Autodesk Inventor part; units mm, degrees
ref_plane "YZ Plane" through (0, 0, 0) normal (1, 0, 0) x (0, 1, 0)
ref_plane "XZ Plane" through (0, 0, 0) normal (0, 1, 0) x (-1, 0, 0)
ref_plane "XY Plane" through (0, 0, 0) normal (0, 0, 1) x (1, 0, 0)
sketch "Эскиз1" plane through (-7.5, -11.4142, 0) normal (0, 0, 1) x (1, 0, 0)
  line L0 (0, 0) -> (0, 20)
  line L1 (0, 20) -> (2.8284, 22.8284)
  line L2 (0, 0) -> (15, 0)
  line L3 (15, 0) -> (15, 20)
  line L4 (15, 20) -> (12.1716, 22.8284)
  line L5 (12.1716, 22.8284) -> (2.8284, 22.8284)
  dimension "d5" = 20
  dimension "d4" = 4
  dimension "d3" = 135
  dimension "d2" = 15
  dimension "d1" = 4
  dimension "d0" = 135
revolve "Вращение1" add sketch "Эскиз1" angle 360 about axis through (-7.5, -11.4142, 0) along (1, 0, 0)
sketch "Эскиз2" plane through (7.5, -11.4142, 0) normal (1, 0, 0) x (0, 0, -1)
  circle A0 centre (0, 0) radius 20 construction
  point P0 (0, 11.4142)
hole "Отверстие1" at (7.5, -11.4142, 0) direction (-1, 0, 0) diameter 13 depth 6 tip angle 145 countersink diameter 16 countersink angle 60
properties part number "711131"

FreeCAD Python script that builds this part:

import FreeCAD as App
import Part
import Sketcher
from FreeCAD import Vector

doc = App.newDocument("Part")
body = doc.addObject("PartDesign::Body", "Body")

sketch1 = body.newObject("Sketcher::SketchObject", "Sketch")
sketch1.AttachmentSupport = (doc.getObject("XY_Plane"), [""])
sketch1.MapMode = "FlatFace"
sketch1.addGeometry([
    Part.LineSegment(Vector(-7.5, 8.6, 0), Vector(-7.5, -11.4, 0)),
    Part.LineSegment(Vector(-7.5, -11.4, 0), Vector(7.5, -11.4, 0)),
    Part.LineSegment(Vector(7.5, -11.4, 0), Vector(7.5, 8.6, 0)),
    Part.LineSegment(Vector(7.5, 8.6, 0), Vector(4.7, 11.4, 0)),
    Part.LineSegment(Vector(4.7, 11.4, 0), Vector(-4.7, 11.4, 0)),
    Part.LineSegment(Vector(-4.7, 11.4, 0), Vector(-7.5, 8.6, 0)),
], False)
sketch1.addGeometry(Part.LineSegment(Vector(-7.5, -11.4, 0), Vector(7.5, -11.4, 0)), True)
sketch1.addConstraint([
    Sketcher.Constraint("Coincident", 0, 2, 1, 1),
    Sketcher.Constraint("Coincident", 1, 2, 2, 1),
    Sketcher.Constraint("Coincident", 2, 2, 3, 1),
    Sketcher.Constraint("Coincident", 3, 2, 4, 1),
    Sketcher.Constraint("Coincident", 4, 2, 5, 1),
    Sketcher.Constraint("Coincident", 5, 2, 0, 1),
    Sketcher.Constraint("Vertical", 0),
    Sketcher.Constraint("Horizontal", 1),
    Sketcher.Constraint("Vertical", 2),
    Sketcher.Constraint("Horizontal", 4),
    Sketcher.Constraint("Horizontal", 6),
    Sketcher.Constraint("Coincident", 6, 1, 0, 2),
    Sketcher.Constraint("Symmetric", 2, 2, 5, 2, -2),
    Sketcher.Constraint("Perpendicular", 3, 5),
    Sketcher.Constraint("Vertical", 2, 2, 6, 2),
    Sketcher.Constraint("Equal", 3, 5),
    Sketcher.Constraint("DistanceX", 1, 1, 1, 2, 15.0),
    Sketcher.Constraint("DistanceY", 0, 2, 0, 1, 20.0),
    Sketcher.Constraint("Distance", 3, 4.0),
    Sketcher.Constraint("DistanceY", 0, 2, -1, 1, 11.4142),
])
revolution = body.newObject("PartDesign::Revolution", "Revolution")
revolution.Profile = sketch1
revolution.ReferenceAxis = (sketch1, ["Axis0"])
revolution.Angle = 360

sketch2 = body.newObject("Sketcher::SketchObject", "Sketch001")
sketch2.AttachmentSupport = (doc.getObject("YZ_Plane"), [""])
sketch2.MapMode = "FlatFace"
sketch2.AttachmentOffset = App.Placement(Vector(0, 0, 7.5), App.Rotation())
sketch2.addGeometry(Part.Circle(Vector(-11, 0, 0), Vector(0, 0, 1), 6), False)
sketch2.addConstraint([
    Sketcher.Constraint("PointOnObject", 0, 3, -1),
    Sketcher.Constraint("Diameter", 0, 13.0),
    Sketcher.Constraint("DistanceX", 0, 3, -1, 1, 11.4142),
])
doc.recompute()
hole = body.newObject("PartDesign::Hole", "Hole")
hole.Profile = sketch2
hole.ThreadType = "None"
hole.Diameter = 13
hole.DepthType = "Dimension"
hole.Depth = 6
hole.DrillPoint = "Angled"
hole.DrillPointAngle = 145
hole.HoleCutType = "Countersink"
hole.HoleCutDiameter = 16
hole.HoleCutCountersinkAngle = 60

doc.recompute()
